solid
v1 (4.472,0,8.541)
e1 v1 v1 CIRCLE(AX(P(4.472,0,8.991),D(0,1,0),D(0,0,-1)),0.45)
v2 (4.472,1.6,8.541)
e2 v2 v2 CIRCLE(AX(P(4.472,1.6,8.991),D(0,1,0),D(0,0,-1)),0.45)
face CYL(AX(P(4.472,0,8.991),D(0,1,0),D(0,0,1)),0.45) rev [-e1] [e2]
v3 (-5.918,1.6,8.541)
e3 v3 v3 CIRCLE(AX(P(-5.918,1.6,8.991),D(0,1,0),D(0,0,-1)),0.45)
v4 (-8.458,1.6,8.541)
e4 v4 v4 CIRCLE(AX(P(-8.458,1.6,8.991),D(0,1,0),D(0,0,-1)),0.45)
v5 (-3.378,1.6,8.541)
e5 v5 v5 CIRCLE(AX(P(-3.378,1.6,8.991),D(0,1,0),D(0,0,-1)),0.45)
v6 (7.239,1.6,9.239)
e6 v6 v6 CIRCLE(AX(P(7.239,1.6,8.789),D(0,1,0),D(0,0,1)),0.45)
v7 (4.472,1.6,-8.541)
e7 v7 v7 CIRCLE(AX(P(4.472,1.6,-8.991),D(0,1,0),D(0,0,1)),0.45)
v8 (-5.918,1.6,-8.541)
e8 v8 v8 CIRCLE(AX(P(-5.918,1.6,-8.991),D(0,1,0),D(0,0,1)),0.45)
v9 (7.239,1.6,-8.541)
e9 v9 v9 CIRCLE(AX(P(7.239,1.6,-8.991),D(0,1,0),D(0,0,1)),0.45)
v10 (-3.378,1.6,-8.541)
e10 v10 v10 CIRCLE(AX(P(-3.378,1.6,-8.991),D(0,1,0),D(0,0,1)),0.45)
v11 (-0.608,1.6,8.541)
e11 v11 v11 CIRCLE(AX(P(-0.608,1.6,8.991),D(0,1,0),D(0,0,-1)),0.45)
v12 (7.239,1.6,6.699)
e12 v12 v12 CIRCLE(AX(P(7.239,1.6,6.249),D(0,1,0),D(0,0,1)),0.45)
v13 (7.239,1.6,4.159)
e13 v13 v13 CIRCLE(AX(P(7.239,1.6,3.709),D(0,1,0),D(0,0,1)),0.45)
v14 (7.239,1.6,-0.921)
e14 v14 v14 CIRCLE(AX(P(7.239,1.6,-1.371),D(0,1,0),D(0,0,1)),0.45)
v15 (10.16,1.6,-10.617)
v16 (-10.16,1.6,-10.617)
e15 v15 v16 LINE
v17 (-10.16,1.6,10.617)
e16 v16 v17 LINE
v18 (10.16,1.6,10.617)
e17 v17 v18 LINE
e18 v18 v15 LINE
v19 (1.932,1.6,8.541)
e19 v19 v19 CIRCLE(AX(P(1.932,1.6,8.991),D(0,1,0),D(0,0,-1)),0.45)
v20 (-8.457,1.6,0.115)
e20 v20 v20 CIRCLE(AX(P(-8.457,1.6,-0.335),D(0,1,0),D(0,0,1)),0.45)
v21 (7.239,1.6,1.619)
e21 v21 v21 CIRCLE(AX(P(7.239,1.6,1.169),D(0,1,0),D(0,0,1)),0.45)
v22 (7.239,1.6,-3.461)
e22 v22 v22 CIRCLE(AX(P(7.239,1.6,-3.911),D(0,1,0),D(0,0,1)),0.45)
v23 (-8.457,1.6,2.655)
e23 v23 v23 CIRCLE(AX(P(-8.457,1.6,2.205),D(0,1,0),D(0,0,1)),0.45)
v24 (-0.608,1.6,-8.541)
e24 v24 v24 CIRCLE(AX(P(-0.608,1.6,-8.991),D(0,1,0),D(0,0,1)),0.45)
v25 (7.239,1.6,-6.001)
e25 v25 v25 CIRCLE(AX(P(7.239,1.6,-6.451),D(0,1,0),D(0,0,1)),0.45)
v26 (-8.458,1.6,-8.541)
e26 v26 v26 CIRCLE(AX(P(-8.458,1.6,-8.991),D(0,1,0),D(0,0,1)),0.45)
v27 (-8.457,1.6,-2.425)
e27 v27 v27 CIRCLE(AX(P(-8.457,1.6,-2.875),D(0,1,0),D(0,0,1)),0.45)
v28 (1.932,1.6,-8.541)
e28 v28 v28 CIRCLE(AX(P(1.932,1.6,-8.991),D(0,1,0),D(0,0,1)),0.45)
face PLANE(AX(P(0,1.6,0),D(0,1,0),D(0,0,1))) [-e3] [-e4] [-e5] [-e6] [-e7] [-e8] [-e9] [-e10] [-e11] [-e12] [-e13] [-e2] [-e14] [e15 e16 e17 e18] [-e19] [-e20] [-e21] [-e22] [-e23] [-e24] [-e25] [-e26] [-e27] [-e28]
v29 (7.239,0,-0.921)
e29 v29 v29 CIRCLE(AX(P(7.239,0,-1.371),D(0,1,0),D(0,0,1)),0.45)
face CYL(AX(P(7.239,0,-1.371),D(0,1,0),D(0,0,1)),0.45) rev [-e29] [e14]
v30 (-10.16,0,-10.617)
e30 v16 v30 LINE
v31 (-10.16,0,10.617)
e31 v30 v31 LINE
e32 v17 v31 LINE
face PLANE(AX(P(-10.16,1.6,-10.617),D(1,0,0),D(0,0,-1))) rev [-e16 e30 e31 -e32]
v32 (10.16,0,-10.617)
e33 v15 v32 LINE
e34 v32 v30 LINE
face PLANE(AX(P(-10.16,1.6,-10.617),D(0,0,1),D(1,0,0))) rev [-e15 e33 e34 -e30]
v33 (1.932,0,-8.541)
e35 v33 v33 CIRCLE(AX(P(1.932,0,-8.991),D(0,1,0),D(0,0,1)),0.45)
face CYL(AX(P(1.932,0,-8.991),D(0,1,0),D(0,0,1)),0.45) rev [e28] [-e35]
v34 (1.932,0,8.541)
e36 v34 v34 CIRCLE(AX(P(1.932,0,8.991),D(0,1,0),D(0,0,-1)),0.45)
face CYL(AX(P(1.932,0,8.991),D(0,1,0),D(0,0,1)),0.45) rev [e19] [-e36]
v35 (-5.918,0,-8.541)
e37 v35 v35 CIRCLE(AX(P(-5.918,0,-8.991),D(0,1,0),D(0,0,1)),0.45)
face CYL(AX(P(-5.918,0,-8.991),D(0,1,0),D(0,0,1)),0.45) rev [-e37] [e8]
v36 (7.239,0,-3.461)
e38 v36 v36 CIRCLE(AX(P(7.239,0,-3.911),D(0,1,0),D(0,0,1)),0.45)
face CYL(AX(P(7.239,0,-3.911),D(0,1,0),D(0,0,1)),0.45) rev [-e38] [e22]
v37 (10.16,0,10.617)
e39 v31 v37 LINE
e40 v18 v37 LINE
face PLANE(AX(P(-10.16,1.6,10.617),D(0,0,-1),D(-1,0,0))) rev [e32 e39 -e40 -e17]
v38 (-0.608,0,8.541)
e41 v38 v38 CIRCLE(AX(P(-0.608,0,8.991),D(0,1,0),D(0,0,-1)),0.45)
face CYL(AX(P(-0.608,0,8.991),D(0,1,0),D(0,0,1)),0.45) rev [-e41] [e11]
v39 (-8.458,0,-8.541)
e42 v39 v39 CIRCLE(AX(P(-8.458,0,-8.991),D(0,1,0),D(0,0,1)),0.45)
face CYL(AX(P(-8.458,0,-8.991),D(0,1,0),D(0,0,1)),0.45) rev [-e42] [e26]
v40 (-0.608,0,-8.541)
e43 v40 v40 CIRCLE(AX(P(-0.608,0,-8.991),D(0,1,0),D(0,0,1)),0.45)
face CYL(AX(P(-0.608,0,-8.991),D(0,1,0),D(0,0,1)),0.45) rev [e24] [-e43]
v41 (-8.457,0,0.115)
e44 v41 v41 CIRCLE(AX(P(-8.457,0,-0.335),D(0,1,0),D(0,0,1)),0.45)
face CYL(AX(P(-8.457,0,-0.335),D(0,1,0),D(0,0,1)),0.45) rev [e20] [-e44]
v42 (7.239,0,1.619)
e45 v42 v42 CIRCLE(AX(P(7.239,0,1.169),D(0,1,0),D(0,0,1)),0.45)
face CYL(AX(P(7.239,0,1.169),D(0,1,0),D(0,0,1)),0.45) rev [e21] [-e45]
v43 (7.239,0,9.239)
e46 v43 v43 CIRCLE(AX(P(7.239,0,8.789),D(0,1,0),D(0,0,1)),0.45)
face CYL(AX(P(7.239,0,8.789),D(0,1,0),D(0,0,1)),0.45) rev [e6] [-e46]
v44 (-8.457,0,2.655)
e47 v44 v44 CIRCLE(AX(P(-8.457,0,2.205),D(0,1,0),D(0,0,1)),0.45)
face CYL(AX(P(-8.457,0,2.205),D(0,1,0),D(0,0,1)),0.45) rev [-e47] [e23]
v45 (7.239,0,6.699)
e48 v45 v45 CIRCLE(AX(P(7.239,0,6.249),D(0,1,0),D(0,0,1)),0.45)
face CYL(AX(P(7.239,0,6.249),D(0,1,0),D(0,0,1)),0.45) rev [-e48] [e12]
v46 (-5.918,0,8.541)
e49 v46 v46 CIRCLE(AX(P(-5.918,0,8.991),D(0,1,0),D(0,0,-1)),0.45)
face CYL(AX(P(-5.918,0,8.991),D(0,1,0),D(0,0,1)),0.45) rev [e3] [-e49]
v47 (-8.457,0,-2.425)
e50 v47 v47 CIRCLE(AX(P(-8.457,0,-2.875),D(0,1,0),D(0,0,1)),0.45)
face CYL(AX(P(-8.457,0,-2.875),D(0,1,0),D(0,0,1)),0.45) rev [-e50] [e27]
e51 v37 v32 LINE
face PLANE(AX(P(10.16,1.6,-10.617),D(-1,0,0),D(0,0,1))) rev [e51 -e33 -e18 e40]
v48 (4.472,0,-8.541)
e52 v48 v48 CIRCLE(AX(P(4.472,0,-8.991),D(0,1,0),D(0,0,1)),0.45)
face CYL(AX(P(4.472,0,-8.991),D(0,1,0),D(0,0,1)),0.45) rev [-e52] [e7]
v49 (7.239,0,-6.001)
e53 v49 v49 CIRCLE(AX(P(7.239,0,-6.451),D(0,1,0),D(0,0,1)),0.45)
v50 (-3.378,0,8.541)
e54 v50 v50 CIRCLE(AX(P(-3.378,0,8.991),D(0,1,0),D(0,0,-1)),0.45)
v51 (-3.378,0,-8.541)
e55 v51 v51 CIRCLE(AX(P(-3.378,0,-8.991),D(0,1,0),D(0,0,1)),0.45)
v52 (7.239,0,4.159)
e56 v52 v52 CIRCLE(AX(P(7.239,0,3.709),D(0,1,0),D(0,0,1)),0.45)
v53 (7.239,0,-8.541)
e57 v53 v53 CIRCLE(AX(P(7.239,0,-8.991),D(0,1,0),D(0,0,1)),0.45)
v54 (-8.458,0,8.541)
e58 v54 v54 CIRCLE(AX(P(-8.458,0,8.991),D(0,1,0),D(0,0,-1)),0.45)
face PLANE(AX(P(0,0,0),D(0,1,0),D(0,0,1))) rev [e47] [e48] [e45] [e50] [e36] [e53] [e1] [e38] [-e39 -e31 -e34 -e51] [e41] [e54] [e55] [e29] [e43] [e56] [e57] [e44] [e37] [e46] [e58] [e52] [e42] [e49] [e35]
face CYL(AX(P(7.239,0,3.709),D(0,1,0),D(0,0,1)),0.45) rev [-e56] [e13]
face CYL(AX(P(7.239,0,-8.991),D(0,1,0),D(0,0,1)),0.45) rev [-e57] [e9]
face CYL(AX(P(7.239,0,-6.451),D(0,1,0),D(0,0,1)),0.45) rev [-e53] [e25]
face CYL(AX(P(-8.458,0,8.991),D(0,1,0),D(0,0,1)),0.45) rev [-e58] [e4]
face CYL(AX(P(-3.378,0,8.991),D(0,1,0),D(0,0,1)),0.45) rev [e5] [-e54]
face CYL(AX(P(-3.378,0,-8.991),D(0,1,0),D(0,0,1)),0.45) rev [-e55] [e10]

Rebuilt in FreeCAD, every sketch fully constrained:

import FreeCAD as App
import Part
import Sketcher

V = App.Vector

doc = App.newDocument("Part")
body = doc.addObject("PartDesign::Body", "Body")

# Sketch on XZ plane
sketch1 = body.newObject("Sketcher::SketchObject", "Sketch")
sketch1.AttachmentSupport = (doc.getObject("XZ_Plane"), [""])
sketch1.MapMode = "FlatFace"
sketch1.addGeometry(Part.LineSegment(V(-10.16, -10.617, 0), V(-10.16, 10.617, 0)), False)
sketch1.addGeometry(Part.LineSegment(V(-10.16, 10.617, 0), V(10.16, 10.617, 0)), False)
sketch1.addGeometry(Part.LineSegment(V(10.16, 10.617, 0), V(10.16, -10.617, 0)), False)
sketch1.addGeometry(Part.LineSegment(V(10.16, -10.617, 0), V(-10.16, -10.617, 0)), False)
sketch1.addConstraint(Sketcher.Constraint("Coincident", 0, 2, 1, 1))
sketch1.addConstraint(Sketcher.Constraint("Coincident", 1, 2, 2, 1))
sketch1.addConstraint(Sketcher.Constraint("Coincident", 2, 2, 3, 1))
sketch1.addConstraint(Sketcher.Constraint("Coincident", 3, 2, 0, 1))
sketch1.addConstraint(Sketcher.Constraint("Vertical", 0))
sketch1.addConstraint(Sketcher.Constraint("Horizontal", 1))
sketch1.addConstraint(Sketcher.Constraint("Vertical", 2))
sketch1.addConstraint(Sketcher.Constraint("Horizontal", 3))
sketch1.addConstraint(Sketcher.Constraint("Symmetric", 0, 2, 2, 2, -1, 1))
sketch1.addConstraint(Sketcher.Constraint("DistanceX", 1, 1, 1, 2, 20.32))
sketch1.addConstraint(Sketcher.Constraint("DistanceY", 0, 1, 0, 2, 21.234))
pad1 = body.newObject("PartDesign::Pad", "Pad")
pad1.Profile = sketch1
pad1.Length = 1.6
pad1.Reversed = True

# Sketch on XZ plane
sketch2 = body.newObject("Sketcher::SketchObject", "Sketch001")
sketch2.AttachmentSupport = (doc.getObject("XZ_Plane"), [""])
sketch2.MapMode = "FlatFace"
sketch2.AttachmentOffset = App.Placement(V(0, 0, -1.6), App.Rotation())
sketch2.addGeometry(Part.Circle(V(-8.458, -8.991, 0), V(0, 0, 1), 0.45), False)
sketch2.addGeometry(Part.Circle(V(-5.918, -8.991, 0), V(0, 0, 1), 0.45), False)
sketch2.addGeometry(Part.Circle(V(-3.378, -8.991, 0), V(0, 0, 1), 0.45), False)
sketch2.addGeometry(Part.Circle(V(-0.608, -8.991, 0), V(0, 0, 1), 0.45), False)
sketch2.addGeometry(Part.Circle(V(1.932, -8.991, 0), V(0, 0, 1), 0.45), False)
sketch2.addGeometry(Part.Circle(V(4.472, -8.991, 0), V(0, 0, 1), 0.45), False)
sketch2.addGeometry(Part.Circle(V(4.472, 8.991, 0), V(0, 0, 1), 0.45), False)
sketch2.addGeometry(Part.Circle(V(1.932, 8.991, 0), V(0, 0, 1), 0.45), False)
sketch2.addGeometry(Part.Circle(V(-0.608, 8.991, 0), V(0, 0, 1), 0.45), False)
sketch2.addGeometry(Part.Circle(V(-3.378, 8.991, 0), V(0, 0, 1), 0.45), False)
sketch2.addGeometry(Part.Circle(V(-5.918, 8.991, 0), V(0, 0, 1), 0.45), False)
sketch2.addGeometry(Part.Circle(V(-8.458, 8.991, 0), V(0, 0, 1), 0.45), False)
sketch2.addGeometry(Part.Circle(V(7.239, -8.991, 0), V(0, 0, 1), 0.45), False)
sketch2.addGeometry(Part.Circle(V(7.239, -6.451, 0), V(0, 0, 1), 0.45), False)
sketch2.addGeometry(Part.Circle(V(7.239, -3.911, 0), V(0, 0, 1), 0.45), False)
sketch2.addGeometry(Part.Circle(V(7.239, -1.371, 0), V(0, 0, 1), 0.45), False)
sketch2.addGeometry(Part.Circle(V(7.239, 1.169, 0), V(0, 0, 1), 0.45), False)
sketch2.addGeometry(Part.Circle(V(7.239, 3.709, 0), V(0, 0, 1), 0.45), False)
sketch2.addGeometry(Part.Circle(V(7.239, 6.249, 0), V(0, 0, 1), 0.45), False)
sketch2.addGeometry(Part.Circle(V(7.239, 8.789, 0), V(0, 0, 1), 0.45), False)
sketch2.addGeometry(Part.Circle(V(-8.457, -2.875, 0), V(0, 0, 1), 0.45), False)
sketch2.addGeometry(Part.Circle(V(-8.457, -0.335, 0), V(0, 0, 1), 0.45), False)
sketch2.addGeometry(Part.Circle(V(-8.457, 2.205, 0), V(0, 0, 1), 0.45), False)
sketch2.addConstraint(Sketcher.Constraint("Equal", 0, 1))
sketch2.addConstraint(Sketcher.Constraint("Equal", 1, 2))
sketch2.addConstraint(Sketcher.Constraint("Equal", 2, 3))
sketch2.addConstraint(Sketcher.Constraint("Equal", 3, 4))
sketch2.addConstraint(Sketcher.Constraint("Equal", 4, 5))
sketch2.addConstraint(Sketcher.Constraint("Equal", 5, 6))
sketch2.addConstraint(Sketcher.Constraint("Equal", 6, 7))
sketch2.addConstraint(Sketcher.Constraint("Equal", 7, 8))
sketch2.addConstraint(Sketcher.Constraint("Equal", 8, 9))
sketch2.addConstraint(Sketcher.Constraint("Equal", 9, 10))
sketch2.addConstraint(Sketcher.Constraint("Equal", 10, 11))
sketch2.addConstraint(Sketcher.Constraint("Equal", 11, 12))
sketch2.addConstraint(Sketcher.Constraint("Equal", 12, 13))
sketch2.addConstraint(Sketcher.Constraint("Equal", 13, 14))
sketch2.addConstraint(Sketcher.Constraint("Equal", 14, 15))
sketch2.addConstraint(Sketcher.Constraint("Equal", 15, 16))
sketch2.addConstraint(Sketcher.Constraint("Equal", 16, 17))
sketch2.addConstraint(Sketcher.Constraint("Equal", 17, 18))
sketch2.addConstraint(Sketcher.Constraint("Equal", 18, 19))
sketch2.addConstraint(Sketcher.Constraint("Equal", 19, 20))
sketch2.addConstraint(Sketcher.Constraint("Equal", 20, 21))
sketch2.addConstraint(Sketcher.Constraint("Equal", 21, 22))
sketch2.addConstraint(Sketcher.Constraint("Symmetric", 5, 3, 6, 3, -1))
sketch2.addConstraint(Sketcher.Constraint("Symmetric", 4, 3, 7, 3, -1))
sketch2.addConstraint(Sketcher.Constraint("Symmetric", 3, 3, 8, 3, -1))
sketch2.addConstraint(Sketcher.Constraint("Symmetric", 2, 3, 9, 3, -1))
sketch2.addConstraint(Sketcher.Constraint("Symmetric", 1, 3, 10, 3, -1))
sketch2.addConstraint(Sketcher.Constraint("Symmetric", 0, 3, 11, 3, -1))
sketch2.addConstraint(Sketcher.Constraint("Horizontal", 0, 3, 1, 3))
sketch2.addConstraint(Sketcher.Constraint("Horizontal", 1, 3, 2, 3))
sketch2.addConstraint(Sketcher.Constraint("Horizontal", 2, 3, 3, 3))
sketch2.addConstraint(Sketcher.Constraint("Horizontal", 3, 3, 4, 3))
sketch2.addConstraint(Sketcher.Constraint("Horizontal", 4, 3, 5, 3))
sketch2.addConstraint(Sketcher.Constraint("Horizontal", 5, 3, 12, 3))
sketch2.addConstraint(Sketcher.Constraint("Vertical", 12, 3, 13, 3))
sketch2.addConstraint(Sketcher.Constraint("Vertical", 13, 3, 14, 3))
sketch2.addConstraint(Sketcher.Constraint("Vertical", 14, 3, 15, 3))
sketch2.addConstraint(Sketcher.Constraint("Vertical", 15, 3, 16, 3))
sketch2.addConstraint(Sketcher.Constraint("Vertical", 16, 3, 17, 3))
sketch2.addConstraint(Sketcher.Constraint("Vertical", 17, 3, 18, 3))
sketch2.addConstraint(Sketcher.Constraint("Vertical", 18, 3, 19, 3))
sketch2.addConstraint(Sketcher.Constraint("Vertical", 20, 3, 21, 3))
sketch2.addConstraint(Sketcher.Constraint("Vertical", 21, 3, 22, 3))
sketch2.addConstraint(Sketcher.Constraint("Diameter", 0, 0.9))
sketch2.addConstraint(Sketcher.Constraint("DistanceX", 0, 3, 1, 3, 2.54))
sketch2.addConstraint(Sketcher.Constraint("DistanceX", 1, 3, 2, 3, 2.54))
sketch2.addConstraint(Sketcher.Constraint("DistanceX", 2, 3, 3, 3, 2.77))
sketch2.addConstraint(Sketcher.Constraint("DistanceX", 3, 3, 4, 3, 2.54))
sketch2.addConstraint(Sketcher.Constraint("DistanceX", 4, 3, 5, 3, 2.54))
sketch2.addConstraint(Sketcher.Constraint("DistanceY", 12, 3, 13, 3, 2.54))
sketch2.addConstraint(Sketcher.Constraint("DistanceY", 13, 3, 14, 3, 2.54))
sketch2.addConstraint(Sketcher.Constraint("DistanceY", 14, 3, 15, 3, 2.54))
sketch2.addConstraint(Sketcher.Constraint("DistanceY", 15, 3, 16, 3, 2.54))
sketch2.addConstraint(Sketcher.Constraint("DistanceY", 16, 3, 17, 3, 2.54))
sketch2.addConstraint(Sketcher.Constraint("DistanceY", 17, 3, 18, 3, 2.54))
sketch2.addConstraint(Sketcher.Constraint("DistanceY", 18, 3, 19, 3, 2.54))
sketch2.addConstraint(Sketcher.Constraint("DistanceY", 20, 3, 21, 3, 2.54))
sketch2.addConstraint(Sketcher.Constraint("DistanceY", 21, 3, 22, 3, 2.54))
sketch2.addConstraint(Sketcher.Constraint("DistanceX", 0, 3, -1, 1, 8.458))
sketch2.addConstraint(Sketcher.Constraint("DistanceY", 0, 3, -1, 1, 8.991))
sketch2.addConstraint(Sketcher.Constraint("DistanceX", -1, 1, 12, 3, 7.239))
sketch2.addConstraint(Sketcher.Constraint("DistanceX", 20, 3, -1, 1, 8.457))
sketch2.addConstraint(Sketcher.Constraint("DistanceY", 20, 3, -1, 1, 2.875))
pocket1 = body.newObject("PartDesign::Pocket", "Pocket")
pocket1.Profile = sketch2
pocket1.Type = "ThroughAll"
pocket1.Reversed = True

doc.recompute()
